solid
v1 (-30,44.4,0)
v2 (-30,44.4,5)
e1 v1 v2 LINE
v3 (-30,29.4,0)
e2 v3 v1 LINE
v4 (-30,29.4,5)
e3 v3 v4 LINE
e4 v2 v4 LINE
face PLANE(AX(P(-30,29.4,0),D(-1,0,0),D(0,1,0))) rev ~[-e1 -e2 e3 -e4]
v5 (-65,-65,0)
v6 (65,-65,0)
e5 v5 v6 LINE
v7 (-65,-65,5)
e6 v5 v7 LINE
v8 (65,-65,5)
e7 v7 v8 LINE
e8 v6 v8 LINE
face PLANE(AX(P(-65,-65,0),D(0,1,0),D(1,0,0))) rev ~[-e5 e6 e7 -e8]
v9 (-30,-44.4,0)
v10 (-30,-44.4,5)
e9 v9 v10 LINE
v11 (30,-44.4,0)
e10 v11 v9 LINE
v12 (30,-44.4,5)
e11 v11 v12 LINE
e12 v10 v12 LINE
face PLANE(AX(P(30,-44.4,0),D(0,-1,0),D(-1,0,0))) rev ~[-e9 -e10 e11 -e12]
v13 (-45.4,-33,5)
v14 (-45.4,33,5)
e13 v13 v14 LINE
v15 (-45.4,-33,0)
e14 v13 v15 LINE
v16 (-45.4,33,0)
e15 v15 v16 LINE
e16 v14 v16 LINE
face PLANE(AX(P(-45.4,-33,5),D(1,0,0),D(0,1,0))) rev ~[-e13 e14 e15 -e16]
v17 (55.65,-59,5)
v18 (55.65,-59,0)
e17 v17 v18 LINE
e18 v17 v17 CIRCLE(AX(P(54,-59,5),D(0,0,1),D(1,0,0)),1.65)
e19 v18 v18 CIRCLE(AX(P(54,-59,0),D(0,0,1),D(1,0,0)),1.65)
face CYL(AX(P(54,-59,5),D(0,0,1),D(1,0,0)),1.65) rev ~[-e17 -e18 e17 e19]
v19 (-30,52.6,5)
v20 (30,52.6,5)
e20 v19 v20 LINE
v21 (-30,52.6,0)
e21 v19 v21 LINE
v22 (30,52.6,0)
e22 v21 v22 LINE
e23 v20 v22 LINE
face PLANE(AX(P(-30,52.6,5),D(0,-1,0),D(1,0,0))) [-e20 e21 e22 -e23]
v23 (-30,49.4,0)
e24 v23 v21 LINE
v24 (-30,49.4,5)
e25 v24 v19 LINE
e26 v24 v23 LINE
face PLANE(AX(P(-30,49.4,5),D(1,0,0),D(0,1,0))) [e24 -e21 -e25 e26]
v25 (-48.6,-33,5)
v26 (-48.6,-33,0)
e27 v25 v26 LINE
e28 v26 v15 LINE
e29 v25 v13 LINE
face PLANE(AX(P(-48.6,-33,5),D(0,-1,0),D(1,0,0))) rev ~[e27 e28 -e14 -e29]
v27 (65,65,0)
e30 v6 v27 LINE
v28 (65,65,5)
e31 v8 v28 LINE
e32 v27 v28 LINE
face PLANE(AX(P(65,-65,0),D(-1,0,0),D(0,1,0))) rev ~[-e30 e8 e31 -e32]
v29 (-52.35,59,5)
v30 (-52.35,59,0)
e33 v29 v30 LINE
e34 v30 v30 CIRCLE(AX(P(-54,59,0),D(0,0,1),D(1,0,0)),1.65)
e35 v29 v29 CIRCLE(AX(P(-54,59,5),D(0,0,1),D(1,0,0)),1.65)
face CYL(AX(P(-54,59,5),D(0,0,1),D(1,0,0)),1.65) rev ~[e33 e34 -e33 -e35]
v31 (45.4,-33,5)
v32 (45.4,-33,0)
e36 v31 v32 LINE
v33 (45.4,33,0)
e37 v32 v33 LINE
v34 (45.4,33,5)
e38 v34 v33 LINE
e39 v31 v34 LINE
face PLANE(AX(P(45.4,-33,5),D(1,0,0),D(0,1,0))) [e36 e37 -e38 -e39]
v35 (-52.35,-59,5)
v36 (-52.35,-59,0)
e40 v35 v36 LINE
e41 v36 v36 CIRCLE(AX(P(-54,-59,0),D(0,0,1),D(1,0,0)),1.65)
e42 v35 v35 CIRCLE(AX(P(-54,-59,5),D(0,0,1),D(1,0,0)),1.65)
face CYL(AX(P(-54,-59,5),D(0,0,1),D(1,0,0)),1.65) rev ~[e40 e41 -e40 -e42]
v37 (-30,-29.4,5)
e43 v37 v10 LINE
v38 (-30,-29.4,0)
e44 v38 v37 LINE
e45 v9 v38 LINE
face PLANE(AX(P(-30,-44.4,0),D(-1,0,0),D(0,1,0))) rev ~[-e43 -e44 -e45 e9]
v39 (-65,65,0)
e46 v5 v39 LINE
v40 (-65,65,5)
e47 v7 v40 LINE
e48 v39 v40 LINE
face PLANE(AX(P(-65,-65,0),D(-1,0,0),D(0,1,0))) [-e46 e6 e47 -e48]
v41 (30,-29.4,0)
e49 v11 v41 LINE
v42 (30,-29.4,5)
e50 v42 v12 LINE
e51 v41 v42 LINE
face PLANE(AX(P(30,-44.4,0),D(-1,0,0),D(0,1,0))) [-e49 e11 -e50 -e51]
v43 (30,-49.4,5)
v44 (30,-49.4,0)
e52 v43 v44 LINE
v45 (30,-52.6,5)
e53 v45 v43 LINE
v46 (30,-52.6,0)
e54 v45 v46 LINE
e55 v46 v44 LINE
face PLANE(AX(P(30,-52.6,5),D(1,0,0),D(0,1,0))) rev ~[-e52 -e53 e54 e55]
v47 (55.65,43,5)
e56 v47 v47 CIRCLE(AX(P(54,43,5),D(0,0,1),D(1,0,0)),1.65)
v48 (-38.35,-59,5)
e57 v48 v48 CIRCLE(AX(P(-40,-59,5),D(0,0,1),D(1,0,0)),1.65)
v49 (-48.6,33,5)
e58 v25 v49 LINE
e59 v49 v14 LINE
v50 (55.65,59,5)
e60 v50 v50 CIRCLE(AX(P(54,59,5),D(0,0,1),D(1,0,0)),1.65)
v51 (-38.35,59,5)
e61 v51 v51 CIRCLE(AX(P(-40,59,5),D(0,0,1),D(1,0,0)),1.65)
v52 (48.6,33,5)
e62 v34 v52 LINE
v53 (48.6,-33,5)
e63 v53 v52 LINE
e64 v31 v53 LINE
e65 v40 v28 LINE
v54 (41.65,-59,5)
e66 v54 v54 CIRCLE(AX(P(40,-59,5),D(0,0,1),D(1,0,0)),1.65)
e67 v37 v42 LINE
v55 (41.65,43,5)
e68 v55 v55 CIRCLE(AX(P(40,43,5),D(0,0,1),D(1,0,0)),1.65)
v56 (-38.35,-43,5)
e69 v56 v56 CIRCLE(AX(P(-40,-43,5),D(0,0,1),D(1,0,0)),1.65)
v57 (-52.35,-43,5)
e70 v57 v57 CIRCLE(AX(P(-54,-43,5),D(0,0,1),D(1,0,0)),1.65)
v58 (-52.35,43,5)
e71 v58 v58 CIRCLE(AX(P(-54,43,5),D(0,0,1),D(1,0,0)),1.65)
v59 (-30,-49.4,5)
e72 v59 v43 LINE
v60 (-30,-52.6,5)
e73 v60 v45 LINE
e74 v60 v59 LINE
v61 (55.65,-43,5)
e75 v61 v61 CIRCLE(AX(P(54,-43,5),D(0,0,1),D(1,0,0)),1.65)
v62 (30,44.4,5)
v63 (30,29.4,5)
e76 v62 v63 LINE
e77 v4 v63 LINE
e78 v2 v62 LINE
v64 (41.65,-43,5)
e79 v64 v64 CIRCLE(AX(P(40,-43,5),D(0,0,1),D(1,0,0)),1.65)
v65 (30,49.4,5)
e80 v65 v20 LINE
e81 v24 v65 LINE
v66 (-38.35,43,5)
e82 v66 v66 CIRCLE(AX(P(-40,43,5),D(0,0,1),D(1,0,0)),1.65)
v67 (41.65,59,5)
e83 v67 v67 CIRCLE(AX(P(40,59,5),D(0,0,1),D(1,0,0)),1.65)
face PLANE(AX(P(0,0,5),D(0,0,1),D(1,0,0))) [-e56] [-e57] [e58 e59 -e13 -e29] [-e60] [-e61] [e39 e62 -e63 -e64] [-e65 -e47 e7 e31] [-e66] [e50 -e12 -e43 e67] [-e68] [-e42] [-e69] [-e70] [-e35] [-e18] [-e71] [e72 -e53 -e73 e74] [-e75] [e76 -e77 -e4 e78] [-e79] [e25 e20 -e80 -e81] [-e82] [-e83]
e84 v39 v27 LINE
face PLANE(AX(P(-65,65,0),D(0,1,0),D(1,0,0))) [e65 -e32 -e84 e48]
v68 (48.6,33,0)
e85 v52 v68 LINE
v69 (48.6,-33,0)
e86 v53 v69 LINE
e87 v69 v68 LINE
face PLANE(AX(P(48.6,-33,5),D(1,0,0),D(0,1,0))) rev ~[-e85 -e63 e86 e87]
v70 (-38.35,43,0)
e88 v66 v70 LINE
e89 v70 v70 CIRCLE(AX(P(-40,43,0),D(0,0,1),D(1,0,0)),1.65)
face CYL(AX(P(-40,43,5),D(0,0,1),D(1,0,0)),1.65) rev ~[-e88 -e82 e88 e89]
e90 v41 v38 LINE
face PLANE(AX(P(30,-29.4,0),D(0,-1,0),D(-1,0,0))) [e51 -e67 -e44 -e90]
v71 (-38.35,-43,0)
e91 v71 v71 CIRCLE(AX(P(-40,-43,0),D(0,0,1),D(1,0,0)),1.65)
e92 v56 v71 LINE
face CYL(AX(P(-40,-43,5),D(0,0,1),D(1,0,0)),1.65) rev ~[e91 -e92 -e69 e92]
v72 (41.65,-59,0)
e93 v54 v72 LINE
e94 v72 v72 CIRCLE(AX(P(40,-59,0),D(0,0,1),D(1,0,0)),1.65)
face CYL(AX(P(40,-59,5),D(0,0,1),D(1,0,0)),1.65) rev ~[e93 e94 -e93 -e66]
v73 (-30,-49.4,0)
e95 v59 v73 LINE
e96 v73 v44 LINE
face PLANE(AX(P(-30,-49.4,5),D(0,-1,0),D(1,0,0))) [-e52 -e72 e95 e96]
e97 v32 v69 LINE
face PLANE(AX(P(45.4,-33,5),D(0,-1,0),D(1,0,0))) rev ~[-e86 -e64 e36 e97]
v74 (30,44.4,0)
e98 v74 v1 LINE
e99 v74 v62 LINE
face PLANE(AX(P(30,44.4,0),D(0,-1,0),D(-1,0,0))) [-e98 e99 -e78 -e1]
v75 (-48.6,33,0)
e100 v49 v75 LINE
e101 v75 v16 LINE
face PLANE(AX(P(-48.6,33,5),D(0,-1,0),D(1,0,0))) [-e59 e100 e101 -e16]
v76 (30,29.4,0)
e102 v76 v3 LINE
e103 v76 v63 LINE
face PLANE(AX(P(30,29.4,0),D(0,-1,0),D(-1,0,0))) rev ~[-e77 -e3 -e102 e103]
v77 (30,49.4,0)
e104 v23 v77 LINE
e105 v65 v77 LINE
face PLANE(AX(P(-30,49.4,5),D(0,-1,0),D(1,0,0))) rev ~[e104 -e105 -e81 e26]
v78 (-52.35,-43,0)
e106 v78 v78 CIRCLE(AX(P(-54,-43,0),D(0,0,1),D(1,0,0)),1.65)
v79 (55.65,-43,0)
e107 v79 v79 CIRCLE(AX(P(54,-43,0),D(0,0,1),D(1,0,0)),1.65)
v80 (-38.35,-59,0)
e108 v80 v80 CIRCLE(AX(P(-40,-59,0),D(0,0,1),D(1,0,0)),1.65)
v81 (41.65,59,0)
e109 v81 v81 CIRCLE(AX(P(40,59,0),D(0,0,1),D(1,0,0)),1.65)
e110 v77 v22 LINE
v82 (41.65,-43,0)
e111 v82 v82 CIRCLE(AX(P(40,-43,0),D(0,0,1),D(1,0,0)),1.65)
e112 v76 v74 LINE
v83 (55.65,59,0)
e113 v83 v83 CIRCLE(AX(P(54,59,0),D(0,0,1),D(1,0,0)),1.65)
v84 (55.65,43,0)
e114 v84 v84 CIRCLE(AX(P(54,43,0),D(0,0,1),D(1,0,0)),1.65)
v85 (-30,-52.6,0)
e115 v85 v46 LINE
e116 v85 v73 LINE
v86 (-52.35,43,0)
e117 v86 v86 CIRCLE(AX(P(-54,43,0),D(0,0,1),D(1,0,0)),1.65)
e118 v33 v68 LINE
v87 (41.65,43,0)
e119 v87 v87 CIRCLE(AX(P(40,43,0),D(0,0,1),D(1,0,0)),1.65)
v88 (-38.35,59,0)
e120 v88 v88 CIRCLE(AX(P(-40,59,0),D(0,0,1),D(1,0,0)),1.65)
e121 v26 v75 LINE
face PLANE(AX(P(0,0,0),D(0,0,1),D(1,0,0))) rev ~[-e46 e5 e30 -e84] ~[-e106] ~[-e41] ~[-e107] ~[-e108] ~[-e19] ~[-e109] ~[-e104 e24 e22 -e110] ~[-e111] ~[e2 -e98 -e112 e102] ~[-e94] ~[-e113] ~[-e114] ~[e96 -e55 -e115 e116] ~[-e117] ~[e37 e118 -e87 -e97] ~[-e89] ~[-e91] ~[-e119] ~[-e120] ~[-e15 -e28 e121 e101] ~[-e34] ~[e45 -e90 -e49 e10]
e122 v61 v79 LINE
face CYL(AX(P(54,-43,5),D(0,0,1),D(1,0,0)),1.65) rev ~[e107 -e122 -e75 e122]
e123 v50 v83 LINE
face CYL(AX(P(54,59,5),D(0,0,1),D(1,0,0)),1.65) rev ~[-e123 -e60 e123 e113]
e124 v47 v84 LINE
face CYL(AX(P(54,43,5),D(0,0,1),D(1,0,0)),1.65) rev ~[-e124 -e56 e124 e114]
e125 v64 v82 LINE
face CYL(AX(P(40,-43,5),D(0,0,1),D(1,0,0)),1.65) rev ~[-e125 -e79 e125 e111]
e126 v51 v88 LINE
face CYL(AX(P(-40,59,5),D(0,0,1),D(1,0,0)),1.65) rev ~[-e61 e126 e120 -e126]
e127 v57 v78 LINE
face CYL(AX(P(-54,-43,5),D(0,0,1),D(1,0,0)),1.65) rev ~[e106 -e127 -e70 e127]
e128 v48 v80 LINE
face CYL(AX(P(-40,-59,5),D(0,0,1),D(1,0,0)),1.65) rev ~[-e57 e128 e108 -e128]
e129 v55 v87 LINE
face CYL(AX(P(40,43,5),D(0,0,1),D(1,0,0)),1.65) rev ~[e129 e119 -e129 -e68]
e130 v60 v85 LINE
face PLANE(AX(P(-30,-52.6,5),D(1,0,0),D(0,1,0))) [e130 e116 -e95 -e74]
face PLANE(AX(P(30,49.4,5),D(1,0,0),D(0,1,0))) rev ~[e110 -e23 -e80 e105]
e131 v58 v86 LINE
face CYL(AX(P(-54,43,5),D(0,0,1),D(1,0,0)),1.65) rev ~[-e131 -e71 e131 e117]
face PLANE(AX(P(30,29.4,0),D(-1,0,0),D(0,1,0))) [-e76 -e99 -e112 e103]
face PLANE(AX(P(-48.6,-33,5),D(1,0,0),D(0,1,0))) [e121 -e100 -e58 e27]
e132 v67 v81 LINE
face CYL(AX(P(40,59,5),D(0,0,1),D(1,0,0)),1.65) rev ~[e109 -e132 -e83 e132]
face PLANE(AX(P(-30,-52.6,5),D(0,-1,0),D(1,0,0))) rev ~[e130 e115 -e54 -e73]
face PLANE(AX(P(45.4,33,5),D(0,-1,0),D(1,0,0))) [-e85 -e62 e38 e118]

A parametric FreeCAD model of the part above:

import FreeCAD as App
import Part
import Sketcher

V = App.Vector


def add_polygon(sketch, points):
    """Adds a closed chain of lines whose ends are joined by coincident constraints."""
    first, n = sketch.GeometryCount, len(points)
    for a, b in zip(points, points[1:] + points[:1]):
        sketch.addGeometry(Part.LineSegment(App.Vector(*a, 0), App.Vector(*b, 0)), False)
    for i in range(n):
        sketch.addConstraint(Sketcher.Constraint("Coincident", first + i, 2, first + (i + 1) % n, 1))

doc = App.newDocument("Part")
body = doc.addObject("PartDesign::Body", "Body")

sketch1 = body.newObject("Sketcher::SketchObject", "Sketch")
sketch1.AttachmentSupport = (doc.getObject("XY_Plane"), [""])
sketch1.MapMode = "FlatFace"
add_polygon(sketch1, [(-65, 65), (-65, -65), (65, -65), (65, 65)])
sketch1.addConstraint(Sketcher.Constraint("Vertical", 0))
sketch1.addConstraint(Sketcher.Constraint("Horizontal", 1))
sketch1.addConstraint(Sketcher.Constraint("Vertical", 2))
sketch1.addConstraint(Sketcher.Constraint("Horizontal", 3))
sketch1.addConstraint(Sketcher.Constraint("Symmetric", 0, 2, 2, 2, -1, 1))
sketch1.addConstraint(Sketcher.Constraint("Equal", 3, 0))
sketch1.addConstraint(Sketcher.Constraint("DistanceX", 1, 1, 1, 2, 130.0))
pad1 = body.newObject("PartDesign::Pad", "Pad")
pad1.Profile = sketch1
pad1.Length = 5

sketch2 = body.newObject("Sketcher::SketchObject", "Sketch001")
sketch2.AttachmentSupport = (doc.getObject("XY_Plane"), [""])
sketch2.MapMode = "FlatFace"
sketch2.AttachmentOffset = App.Placement(V(0, 0, 5), App.Rotation())
sketch2.addGeometry(Part.Circle(V(-54, 59, 0), V(0, 0, 1), 1.6), False)
sketch2.addGeometry(Part.Circle(V(-40, 59, 0), V(0, 0, 1), 1.6), False)
sketch2.addGeometry(Part.Circle(V(-40, 43, 0), V(0, 0, 1), 1.6), False)
sketch2.addGeometry(Part.Circle(V(-54, 43, 0), V(0, 0, 1), 1.6), False)
sketch2.addGeometry(Part.Circle(V(40, 59, 0), V(0, 0, 1), 1.6), False)
sketch2.addGeometry(Part.Circle(V(54, 59, 0), V(0, 0, 1), 1.6), False)
sketch2.addGeometry(Part.Circle(V(54, 43, 0), V(0, 0, 1), 1.6), False)
sketch2.addGeometry(Part.Circle(V(40, 43, 0), V(0, 0, 1), 1.6), False)
sketch2.addGeometry(Part.Circle(V(40, -43, 0), V(0, 0, 1), 1.6), False)
sketch2.addGeometry(Part.Circle(V(54, -43, 0), V(0, 0, 1), 1.6), False)
sketch2.addGeometry(Part.Circle(V(54, -59, 0), V(0, 0, 1), 1.6), False)
sketch2.addGeometry(Part.Circle(V(40, -59, 0), V(0, 0, 1), 1.6), False)
sketch2.addGeometry(Part.Circle(V(-54, -43, 0), V(0, 0, 1), 1.6), False)
sketch2.addGeometry(Part.Circle(V(-40, -43, 0), V(0, 0, 1), 1.6), False)
sketch2.addGeometry(Part.Circle(V(-40, -59, 0), V(0, 0, 1), 1.6), False)
sketch2.addGeometry(Part.Circle(V(-54, -59, 0), V(0, 0, 1), 1.6), False)
sketch2.addConstraint(Sketcher.Constraint("Equal", 0, 1))
sketch2.addConstraint(Sketcher.Constraint("Equal", 1, 2))
sketch2.addConstraint(Sketcher.Constraint("Equal", 2, 3))
sketch2.addConstraint(Sketcher.Constraint("Equal", 3, 4))
sketch2.addConstraint(Sketcher.Constraint("Equal", 4, 5))
sketch2.addConstraint(Sketcher.Constraint("Equal", 5, 6))
sketch2.addConstraint(Sketcher.Constraint("Equal", 6, 7))
sketch2.addConstraint(Sketcher.Constraint("Equal", 7, 8))
sketch2.addConstraint(Sketcher.Constraint("Equal", 8, 9))
sketch2.addConstraint(Sketcher.Constraint("Equal", 9, 10))
sketch2.addConstraint(Sketcher.Constraint("Equal", 10, 11))
sketch2.addConstraint(Sketcher.Constraint("Equal", 11, 12))
sketch2.addConstraint(Sketcher.Constraint("Equal", 12, 13))
sketch2.addConstraint(Sketcher.Constraint("Equal", 13, 14))
sketch2.addConstraint(Sketcher.Constraint("Equal", 14, 15))
sketch2.addConstraint(Sketcher.Constraint("Symmetric", 2, 3, 8, 3, -1, 1))
sketch2.addConstraint(Sketcher.Constraint("Symmetric", 3, 3, 9, 3, -1, 1))
sketch2.addConstraint(Sketcher.Constraint("Symmetric", 0, 3, 10, 3, -1, 1))
sketch2.addConstraint(Sketcher.Constraint("Symmetric", 1, 3, 11, 3, -1, 1))
sketch2.addConstraint(Sketcher.Constraint("Symmetric", 6, 3, 12, 3, -1, 1))
sketch2.addConstraint(Sketcher.Constraint("Symmetric", 7, 3, 13, 3, -1, 1))
sketch2.addConstraint(Sketcher.Constraint("Symmetric", 4, 3, 14, 3, -1, 1))
sketch2.addConstraint(Sketcher.Constraint("Symmetric", 5, 3, 15, 3, -1, 1))
sketch2.addConstraint(Sketcher.Constraint("Symmetric", 1, 3, 4, 3, -2))
sketch2.addConstraint(Sketcher.Constraint("Symmetric", 0, 3, 5, 3, -2))
sketch2.addConstraint(Sketcher.Constraint("Symmetric", 3, 3, 6, 3, -2))
sketch2.addConstraint(Sketcher.Constraint("Symmetric", 2, 3, 7, 3, -2))
sketch2.addConstraint(Sketcher.Constraint("Horizontal", 0, 3, 1, 3))
sketch2.addConstraint(Sketcher.Constraint("Horizontal", 2, 3, 3, 3))
sketch2.addConstraint(Sketcher.Constraint("Vertical", 1, 3, 2, 3))
sketch2.addConstraint(Sketcher.Constraint("Vertical", 0, 3, 3, 3))
sketch2.addConstraint(Sketcher.Constraint("Diameter", 0, 3.3))
sketch2.addConstraint(Sketcher.Constraint("DistanceX", 0, 3, -1, 1, 54.0))
sketch2.addConstraint(Sketcher.Constraint("DistanceY", -1, 1, 0, 3, 59.0))
sketch2.addConstraint(Sketcher.Constraint("DistanceX", 1, 3, -1, 1, 40.0))
sketch2.addConstraint(Sketcher.Constraint("DistanceY", -1, 1, 2, 3, 43.0))
pocket1 = body.newObject("PartDesign::Pocket", "Pocket")
pocket1.Profile = sketch2
pocket1.Length = 5

sketch3 = body.newObject("Sketcher::SketchObject", "Sketch002")
sketch3.AttachmentSupport = (doc.getObject("XY_Plane"), [""])
sketch3.MapMode = "FlatFace"
sketch3.AttachmentOffset = App.Placement(V(0, 0, 5), App.Rotation())
add_polygon(sketch3, [(45.4, 33), (45.4, -33), (48.6, -33), (48.6, 33)])
add_polygon(sketch3, [(-48.6, 33), (-48.6, -33), (-45.4, -33), (-45.4, 33)])
add_polygon(sketch3, [(-30, -49.4), (-30, -52.6), (30, -52.6), (30, -49.4)])
add_polygon(sketch3, [(-30, 52.6), (-30, 49.4), (30, 49.4), (30, 52.6)])
sketch3.addConstraint(Sketcher.Constraint("Vertical", 0))
sketch3.addConstraint(Sketcher.Constraint("Horizontal", 1))
sketch3.addConstraint(Sketcher.Constraint("Vertical", 2))
sketch3.addConstraint(Sketcher.Constraint("Horizontal", 3))
sketch3.addConstraint(Sketcher.Constraint("Vertical", 4))
sketch3.addConstraint(Sketcher.Constraint("Horizontal", 5))
sketch3.addConstraint(Sketcher.Constraint("Vertical", 6))
sketch3.addConstraint(Sketcher.Constraint("Horizontal", 7))
sketch3.addConstraint(Sketcher.Constraint("Vertical", 8))
sketch3.addConstraint(Sketcher.Constraint("Horizontal", 9))
sketch3.addConstraint(Sketcher.Constraint("Vertical", 10))
sketch3.addConstraint(Sketcher.Constraint("Horizontal", 11))
sketch3.addConstraint(Sketcher.Constraint("Vertical", 12))
sketch3.addConstraint(Sketcher.Constraint("Horizontal", 13))
sketch3.addConstraint(Sketcher.Constraint("Vertical", 14))
sketch3.addConstraint(Sketcher.Constraint("Horizontal", 15))
sketch3.addConstraint(Sketcher.Constraint("Symmetric", 2, 2, 4, 2, -1, 1))
sketch3.addConstraint(Sketcher.Constraint("Symmetric", 0, 2, 6, 2, -1, 1))
sketch3.addConstraint(Sketcher.Constraint("Symmetric", 10, 2, 12, 2, -1, 1))
sketch3.addConstraint(Sketcher.Constraint("Symmetric", 8, 2, 14, 2, -1, 1))
sketch3.addConstraint(Sketcher.Constraint("Horizontal", 1, 2, 4, 2))
sketch3.addConstraint(Sketcher.Constraint("Vertical", 11, 2, 12, 2))
sketch3.addConstraint(Sketcher.Constraint("Equal", 7, 8))
sketch3.addConstraint(Sketcher.Constraint("DistanceX", 9, 1, 9, 2, 60.0))
sketch3.addConstraint(Sketcher.Constraint("DistanceY", 0, 2, 0, 1, 66.0))
sketch3.addConstraint(Sketcher.Constraint("DistanceX", 1, 1, 1, 2, 3.2))
sketch3.addConstraint(Sketcher.Constraint("DistanceX", 4, 2, 0, 2, 94.0))
sketch3.addConstraint(Sketcher.Constraint("DistanceY", 8, 2, -1, 1, 52.6))
pocket2 = body.newObject("PartDesign::Pocket", "Pocket001")
pocket2.Profile = sketch3
pocket2.Length = 10

sketch4 = body.newObject("Sketcher::SketchObject", "Sketch003")
sketch4.AttachmentSupport = (doc.getObject("XY_Plane"), [""])
sketch4.MapMode = "FlatFace"
add_polygon(sketch4, [(30, 44), (30, 29), (-30, 29), (-30, 44)])
add_polygon(sketch4, [(30, -29), (30, -44), (-30, -44), (-30, -29)])
sketch4.addConstraint(Sketcher.Constraint("Vertical", 0))
sketch4.addConstraint(Sketcher.Constraint("Horizontal", 1))
sketch4.addConstraint(Sketcher.Constraint("Vertical", 2))
sketch4.addConstraint(Sketcher.Constraint("Horizontal", 3))
sketch4.addConstraint(Sketcher.Constraint("Vertical", 4))
sketch4.addConstraint(Sketcher.Constraint("Horizontal", 5))
sketch4.addConstraint(Sketcher.Constraint("Vertical", 6))
sketch4.addConstraint(Sketcher.Constraint("Horizontal", 7))
sketch4.addConstraint(Sketcher.Constraint("Symmetric", 2, 2, 4, 2, -1, 1))
sketch4.addConstraint(Sketcher.Constraint("Symmetric", 0, 2, 6, 2, -1, 1))
sketch4.addConstraint(Sketcher.Constraint("Vertical", 3, 2, 4, 2))
sketch4.addConstraint(Sketcher.Constraint("DistanceX", 1, 2, 1, 1, 60.0))
sketch4.addConstraint(Sketcher.Constraint("DistanceY", 0, 2, 0, 1, 15.0))
sketch4.addConstraint(Sketcher.Constraint("DistanceY", -1, 1, 0, 2, 29.4))
pocket3 = body.newObject("PartDesign::Pocket", "Pocket002")
pocket3.Profile = sketch4
pocket3.Length = 10
pocket3.Reversed = True

doc.recompute()
